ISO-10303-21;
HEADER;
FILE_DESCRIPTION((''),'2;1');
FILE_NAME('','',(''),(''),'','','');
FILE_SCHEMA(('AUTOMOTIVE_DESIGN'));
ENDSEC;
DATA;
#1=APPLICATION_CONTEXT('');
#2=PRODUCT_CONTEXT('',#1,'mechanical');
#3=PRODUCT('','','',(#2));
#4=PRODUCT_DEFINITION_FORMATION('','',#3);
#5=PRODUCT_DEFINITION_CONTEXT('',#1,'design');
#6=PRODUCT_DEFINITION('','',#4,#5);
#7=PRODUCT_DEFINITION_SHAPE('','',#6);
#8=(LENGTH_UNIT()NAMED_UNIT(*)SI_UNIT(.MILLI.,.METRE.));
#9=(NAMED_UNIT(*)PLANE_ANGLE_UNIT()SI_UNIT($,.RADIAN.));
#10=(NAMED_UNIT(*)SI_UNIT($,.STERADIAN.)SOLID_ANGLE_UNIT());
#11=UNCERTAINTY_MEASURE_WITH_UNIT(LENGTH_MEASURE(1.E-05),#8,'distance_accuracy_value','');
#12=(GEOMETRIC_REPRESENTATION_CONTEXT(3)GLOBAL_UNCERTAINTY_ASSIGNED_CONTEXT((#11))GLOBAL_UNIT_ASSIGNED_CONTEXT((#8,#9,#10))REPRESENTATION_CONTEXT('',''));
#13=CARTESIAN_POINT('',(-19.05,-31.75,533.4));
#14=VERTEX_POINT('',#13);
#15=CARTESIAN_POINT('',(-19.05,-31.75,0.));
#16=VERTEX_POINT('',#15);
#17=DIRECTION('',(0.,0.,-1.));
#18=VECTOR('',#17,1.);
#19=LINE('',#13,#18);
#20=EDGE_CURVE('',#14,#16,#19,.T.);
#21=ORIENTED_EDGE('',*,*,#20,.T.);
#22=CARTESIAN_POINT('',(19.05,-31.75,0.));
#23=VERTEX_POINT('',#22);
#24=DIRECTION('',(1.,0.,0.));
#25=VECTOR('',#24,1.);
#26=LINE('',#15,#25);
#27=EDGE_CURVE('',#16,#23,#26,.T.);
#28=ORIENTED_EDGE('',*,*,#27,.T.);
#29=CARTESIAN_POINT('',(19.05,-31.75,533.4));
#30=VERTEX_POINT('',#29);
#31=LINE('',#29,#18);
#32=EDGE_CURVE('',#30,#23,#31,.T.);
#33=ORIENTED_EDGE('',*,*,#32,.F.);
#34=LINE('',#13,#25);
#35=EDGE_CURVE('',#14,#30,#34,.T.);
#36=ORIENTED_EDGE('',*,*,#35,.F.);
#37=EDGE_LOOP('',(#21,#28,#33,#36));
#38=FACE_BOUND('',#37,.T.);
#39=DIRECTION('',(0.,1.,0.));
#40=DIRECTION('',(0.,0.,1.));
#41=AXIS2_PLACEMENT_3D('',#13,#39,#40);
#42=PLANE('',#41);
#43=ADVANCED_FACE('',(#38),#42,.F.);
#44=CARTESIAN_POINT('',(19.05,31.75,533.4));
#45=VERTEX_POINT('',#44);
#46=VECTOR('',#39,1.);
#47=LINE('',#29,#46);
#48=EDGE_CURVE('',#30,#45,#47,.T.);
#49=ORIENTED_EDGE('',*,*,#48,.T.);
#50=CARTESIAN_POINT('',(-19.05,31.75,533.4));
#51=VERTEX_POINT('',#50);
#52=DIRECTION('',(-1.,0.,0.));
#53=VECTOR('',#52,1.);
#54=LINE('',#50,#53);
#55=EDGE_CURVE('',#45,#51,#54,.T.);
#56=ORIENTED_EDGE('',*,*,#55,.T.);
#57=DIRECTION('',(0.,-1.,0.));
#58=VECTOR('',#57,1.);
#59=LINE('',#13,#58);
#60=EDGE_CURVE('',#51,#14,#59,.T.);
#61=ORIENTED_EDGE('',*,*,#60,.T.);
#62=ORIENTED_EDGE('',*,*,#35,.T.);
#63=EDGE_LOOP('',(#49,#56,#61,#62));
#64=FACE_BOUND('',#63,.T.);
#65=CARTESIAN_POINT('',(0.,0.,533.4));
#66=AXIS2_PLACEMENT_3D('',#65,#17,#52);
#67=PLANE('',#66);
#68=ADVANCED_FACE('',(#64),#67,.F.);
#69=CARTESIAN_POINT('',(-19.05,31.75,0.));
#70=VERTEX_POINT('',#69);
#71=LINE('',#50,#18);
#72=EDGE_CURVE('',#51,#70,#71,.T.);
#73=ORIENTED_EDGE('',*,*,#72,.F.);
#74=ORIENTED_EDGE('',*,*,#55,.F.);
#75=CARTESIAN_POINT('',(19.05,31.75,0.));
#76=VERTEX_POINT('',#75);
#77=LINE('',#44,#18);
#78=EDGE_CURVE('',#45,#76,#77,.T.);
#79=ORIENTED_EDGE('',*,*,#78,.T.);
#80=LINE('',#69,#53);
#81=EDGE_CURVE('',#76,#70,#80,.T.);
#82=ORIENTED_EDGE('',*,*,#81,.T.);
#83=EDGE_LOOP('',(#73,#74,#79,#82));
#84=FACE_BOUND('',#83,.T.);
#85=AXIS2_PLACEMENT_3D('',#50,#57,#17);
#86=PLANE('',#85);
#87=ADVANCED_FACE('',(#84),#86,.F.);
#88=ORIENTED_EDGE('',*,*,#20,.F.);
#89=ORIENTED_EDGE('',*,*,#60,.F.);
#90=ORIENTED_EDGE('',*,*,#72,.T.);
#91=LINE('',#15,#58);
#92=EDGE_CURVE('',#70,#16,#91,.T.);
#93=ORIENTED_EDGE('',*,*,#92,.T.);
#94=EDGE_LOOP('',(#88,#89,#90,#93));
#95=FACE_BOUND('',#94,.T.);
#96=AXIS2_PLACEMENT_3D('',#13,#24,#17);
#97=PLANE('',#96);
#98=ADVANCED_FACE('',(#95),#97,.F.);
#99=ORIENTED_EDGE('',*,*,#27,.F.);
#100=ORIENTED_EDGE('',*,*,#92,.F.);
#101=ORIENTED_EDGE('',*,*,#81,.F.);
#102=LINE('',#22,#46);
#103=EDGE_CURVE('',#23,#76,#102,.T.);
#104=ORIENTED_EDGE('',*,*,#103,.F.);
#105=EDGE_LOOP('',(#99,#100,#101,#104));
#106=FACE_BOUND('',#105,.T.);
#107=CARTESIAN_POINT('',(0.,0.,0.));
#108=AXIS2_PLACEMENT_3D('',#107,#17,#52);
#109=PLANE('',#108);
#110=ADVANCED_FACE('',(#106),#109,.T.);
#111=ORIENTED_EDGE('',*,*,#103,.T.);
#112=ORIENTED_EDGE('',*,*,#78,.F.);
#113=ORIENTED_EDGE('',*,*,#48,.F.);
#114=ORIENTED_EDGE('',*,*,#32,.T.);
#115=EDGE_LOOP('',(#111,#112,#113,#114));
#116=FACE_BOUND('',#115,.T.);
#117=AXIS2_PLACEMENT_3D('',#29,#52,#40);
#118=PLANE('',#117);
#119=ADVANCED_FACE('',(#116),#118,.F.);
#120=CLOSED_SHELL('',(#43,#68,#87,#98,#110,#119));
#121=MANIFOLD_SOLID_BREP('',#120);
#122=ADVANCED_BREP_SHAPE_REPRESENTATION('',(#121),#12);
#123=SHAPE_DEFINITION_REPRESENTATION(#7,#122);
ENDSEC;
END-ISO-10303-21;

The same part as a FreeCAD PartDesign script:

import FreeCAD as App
import Part
import Sketcher

V = App.Vector
Q = App.Units.Quantity

doc = App.newDocument("Part")
body = doc.addObject("PartDesign::Body", "Body")

# Sketch on XY plane
sketch1 = doc.addObject("Sketcher::SketchObject", "Sketch")
body.addObject(sketch1)
sketch1.AttachmentSupport = (doc.XY_Plane, [""])
sketch1.MapMode = "FlatFace"
sketch1.addGeometry(Part.LineSegment(V(-19, 32, 0), V(-19, -32, 0)), False)
sketch1.addGeometry(Part.LineSegment(V(-19, -32, 0), V(19, -32, 0)), False)
sketch1.addGeometry(Part.LineSegment(V(19, -32, 0), V(19, 32, 0)), False)
sketch1.addGeometry(Part.LineSegment(V(19, 32, 0), V(-19, 32, 0)), False)
sketch1.addConstraint(Sketcher.Constraint("Coincident", 0, 2, 1, 1))
sketch1.addConstraint(Sketcher.Constraint("Coincident", 1, 2, 2, 1))
sketch1.addConstraint(Sketcher.Constraint("Coincident", 2, 2, 3, 1))
sketch1.addConstraint(Sketcher.Constraint("Coincident", 3, 2, 0, 1))
sketch1.addConstraint(Sketcher.Constraint("Vertical", 0))
sketch1.addConstraint(Sketcher.Constraint("Horizontal", 1))
sketch1.addConstraint(Sketcher.Constraint("Vertical", 2))
sketch1.addConstraint(Sketcher.Constraint("Horizontal", 3))
sketch1.addConstraint(Sketcher.Constraint("Symmetric", 0, 2, 2, 2, -1, 1))
sketch1.addConstraint(Sketcher.Constraint("DistanceX", 1, 1, 1, 2, Q("1.5 in")))
sketch1.addConstraint(Sketcher.Constraint("DistanceY", 0, 2, 0, 1, Q("2.5 in")))
pad1 = doc.addObject("PartDesign::Pad", "Pad")
body.addObject(pad1)
pad1.Profile = sketch1
pad1.Length = Q("21 in")

doc.recompute()
